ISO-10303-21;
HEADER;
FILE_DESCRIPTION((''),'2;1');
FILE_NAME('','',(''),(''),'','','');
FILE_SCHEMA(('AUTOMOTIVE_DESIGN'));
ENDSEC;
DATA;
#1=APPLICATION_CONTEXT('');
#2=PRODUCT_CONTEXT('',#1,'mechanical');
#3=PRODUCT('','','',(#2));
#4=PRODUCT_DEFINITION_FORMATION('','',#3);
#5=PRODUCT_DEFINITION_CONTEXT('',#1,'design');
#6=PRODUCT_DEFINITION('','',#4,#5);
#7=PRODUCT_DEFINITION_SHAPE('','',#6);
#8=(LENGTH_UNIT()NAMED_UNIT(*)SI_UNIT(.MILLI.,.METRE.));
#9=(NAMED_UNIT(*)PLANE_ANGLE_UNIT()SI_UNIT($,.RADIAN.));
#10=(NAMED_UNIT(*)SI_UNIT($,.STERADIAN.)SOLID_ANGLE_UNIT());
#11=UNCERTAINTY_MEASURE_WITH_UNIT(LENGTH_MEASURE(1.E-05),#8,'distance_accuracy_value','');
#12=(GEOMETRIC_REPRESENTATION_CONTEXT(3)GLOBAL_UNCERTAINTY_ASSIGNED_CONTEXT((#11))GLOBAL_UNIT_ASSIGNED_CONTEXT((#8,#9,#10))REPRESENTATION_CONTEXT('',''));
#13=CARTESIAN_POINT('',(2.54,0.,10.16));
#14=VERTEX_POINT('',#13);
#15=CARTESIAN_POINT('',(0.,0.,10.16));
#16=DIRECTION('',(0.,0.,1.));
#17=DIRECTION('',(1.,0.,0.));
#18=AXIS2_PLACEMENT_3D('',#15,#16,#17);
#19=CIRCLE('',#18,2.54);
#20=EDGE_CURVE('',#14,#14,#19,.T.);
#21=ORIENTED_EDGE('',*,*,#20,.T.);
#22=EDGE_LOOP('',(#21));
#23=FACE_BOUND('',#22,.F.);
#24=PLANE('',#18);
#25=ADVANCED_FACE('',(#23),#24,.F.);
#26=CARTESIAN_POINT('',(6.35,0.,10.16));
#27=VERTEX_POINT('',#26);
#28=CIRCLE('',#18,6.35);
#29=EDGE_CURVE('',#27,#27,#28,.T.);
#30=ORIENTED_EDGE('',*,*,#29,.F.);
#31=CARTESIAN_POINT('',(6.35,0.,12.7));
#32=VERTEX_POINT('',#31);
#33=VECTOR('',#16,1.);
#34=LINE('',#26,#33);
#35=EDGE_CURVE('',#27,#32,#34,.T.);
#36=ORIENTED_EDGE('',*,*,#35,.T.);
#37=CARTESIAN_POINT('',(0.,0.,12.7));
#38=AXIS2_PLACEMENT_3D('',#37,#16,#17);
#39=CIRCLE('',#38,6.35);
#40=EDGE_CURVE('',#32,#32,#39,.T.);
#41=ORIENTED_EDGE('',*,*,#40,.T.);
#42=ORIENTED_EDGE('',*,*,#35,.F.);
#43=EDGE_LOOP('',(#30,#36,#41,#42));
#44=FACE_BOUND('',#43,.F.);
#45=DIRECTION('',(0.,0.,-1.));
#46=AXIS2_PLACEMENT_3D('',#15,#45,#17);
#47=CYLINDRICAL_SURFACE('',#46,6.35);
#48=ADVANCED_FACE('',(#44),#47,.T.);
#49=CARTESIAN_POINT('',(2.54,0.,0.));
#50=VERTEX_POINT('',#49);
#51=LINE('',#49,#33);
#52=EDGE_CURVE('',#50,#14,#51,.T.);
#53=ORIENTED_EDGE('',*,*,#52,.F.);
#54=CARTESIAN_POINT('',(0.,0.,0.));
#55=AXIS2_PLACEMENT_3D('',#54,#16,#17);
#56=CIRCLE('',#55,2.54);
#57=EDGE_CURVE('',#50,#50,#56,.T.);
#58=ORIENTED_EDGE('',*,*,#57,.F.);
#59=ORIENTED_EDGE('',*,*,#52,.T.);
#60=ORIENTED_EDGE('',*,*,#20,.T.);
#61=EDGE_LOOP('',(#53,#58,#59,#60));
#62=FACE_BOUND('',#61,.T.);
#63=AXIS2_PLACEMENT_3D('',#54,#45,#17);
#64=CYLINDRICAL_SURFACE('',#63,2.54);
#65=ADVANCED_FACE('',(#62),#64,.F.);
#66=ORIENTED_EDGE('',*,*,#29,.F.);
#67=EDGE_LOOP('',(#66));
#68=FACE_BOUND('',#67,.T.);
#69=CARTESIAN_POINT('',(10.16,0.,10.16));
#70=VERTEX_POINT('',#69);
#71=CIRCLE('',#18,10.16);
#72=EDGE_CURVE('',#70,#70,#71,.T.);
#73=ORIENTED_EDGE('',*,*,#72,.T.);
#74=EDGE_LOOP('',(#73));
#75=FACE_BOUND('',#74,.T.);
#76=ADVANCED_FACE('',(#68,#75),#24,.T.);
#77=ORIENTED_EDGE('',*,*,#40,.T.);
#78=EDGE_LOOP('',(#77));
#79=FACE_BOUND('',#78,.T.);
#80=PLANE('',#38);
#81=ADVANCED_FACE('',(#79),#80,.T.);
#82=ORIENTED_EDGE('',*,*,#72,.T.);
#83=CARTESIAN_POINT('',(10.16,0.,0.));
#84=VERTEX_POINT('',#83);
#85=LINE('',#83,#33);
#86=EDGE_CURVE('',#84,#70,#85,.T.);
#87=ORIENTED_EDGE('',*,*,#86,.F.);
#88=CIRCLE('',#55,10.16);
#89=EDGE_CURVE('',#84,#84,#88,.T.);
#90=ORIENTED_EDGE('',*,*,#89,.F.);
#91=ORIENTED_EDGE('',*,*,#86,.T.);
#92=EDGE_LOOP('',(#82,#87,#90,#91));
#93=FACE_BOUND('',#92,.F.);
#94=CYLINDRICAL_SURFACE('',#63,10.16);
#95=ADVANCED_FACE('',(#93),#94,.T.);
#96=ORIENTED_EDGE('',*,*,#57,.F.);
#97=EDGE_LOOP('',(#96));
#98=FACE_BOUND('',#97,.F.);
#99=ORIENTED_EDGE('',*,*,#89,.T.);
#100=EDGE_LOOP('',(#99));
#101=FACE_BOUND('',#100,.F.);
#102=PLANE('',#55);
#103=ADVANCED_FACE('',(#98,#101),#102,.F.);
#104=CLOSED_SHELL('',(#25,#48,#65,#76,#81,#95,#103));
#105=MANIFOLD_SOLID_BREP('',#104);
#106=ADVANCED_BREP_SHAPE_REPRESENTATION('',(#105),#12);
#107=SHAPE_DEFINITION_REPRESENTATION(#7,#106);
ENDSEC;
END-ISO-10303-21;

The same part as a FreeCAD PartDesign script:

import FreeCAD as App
import Part
import Sketcher

V = App.Vector
Q = App.Units.Quantity

doc = App.newDocument("Part")
params = doc.addObject("Spreadsheet::Sheet", "Params")
for row, (alias, value) in enumerate([
    ("sketch1_diameter", "0.8 in"),
    ("sketch1_diameter2", "0.2 in"),
    ("pad1_length", "0.4 in"),
    ("sketch2_diameter", "0.5 in"),
    ("pad2_length", "0.1 in"),
], start=1):
    params.set(f"A{row}", alias)
    params.set(f"B{row}", "=" + value)
    params.setAlias(f"B{row}", alias)

body = doc.addObject("PartDesign::Body", "Body")

sketch1 = doc.addObject("Sketcher::SketchObject", "Sketch")
body.addObject(sketch1)
sketch1.AttachmentSupport = (doc.XY_Plane, [""])
sketch1.MapMode = "FlatFace"
sketch1.addGeometry(Part.Circle(V(0, 0, 0), V(0, 0, 1), 10.2), False)
sketch1.addGeometry(Part.Circle(V(0, 0, 0), V(0, 0, 1), 2.5), False)
sketch1.addConstraint(Sketcher.Constraint("Coincident", 0, 3, -1, 1))
sketch1.addConstraint(Sketcher.Constraint("Coincident", 1, 3, -1, 1))
sketch1.addConstraint(Sketcher.Constraint("Diameter", 0, Q("0.8 in")))
sketch1.addConstraint(Sketcher.Constraint("Diameter", 1, Q("0.2 in")))
sketch1.setExpression("Constraints[2]", "Params.sketch1_diameter")
sketch1.setExpression("Constraints[3]", "Params.sketch1_diameter2")
pad1 = doc.addObject("PartDesign::Pad", "Pad")
body.addObject(pad1)
pad1.Profile = sketch1
pad1.setExpression("Length", "Params.pad1_length")

sketch2 = doc.addObject("Sketcher::SketchObject", "Sketch001")
body.addObject(sketch2)
sketch2.AttachmentSupport = (doc.XY_Plane, [""])
sketch2.MapMode = "FlatFace"
sketch2.AttachmentOffset = App.Placement(V(0, 0, 0.4 * 25.4), App.Rotation())
sketch2.addGeometry(Part.Circle(V(0, 0, 0), V(0, 0, 1), 6), False)
sketch2.addConstraint(Sketcher.Constraint("Coincident", 0, 3, -1, 1))
sketch2.addConstraint(Sketcher.Constraint("Diameter", 0, Q("0.5 in")))
sketch2.setExpression("Constraints[1]", "Params.sketch2_diameter")
pad2 = doc.addObject("PartDesign::Pad", "Pad001")
body.addObject(pad2)
pad2.Profile = sketch2
pad2.setExpression("Length", "Params.pad2_length")

doc.recompute()
